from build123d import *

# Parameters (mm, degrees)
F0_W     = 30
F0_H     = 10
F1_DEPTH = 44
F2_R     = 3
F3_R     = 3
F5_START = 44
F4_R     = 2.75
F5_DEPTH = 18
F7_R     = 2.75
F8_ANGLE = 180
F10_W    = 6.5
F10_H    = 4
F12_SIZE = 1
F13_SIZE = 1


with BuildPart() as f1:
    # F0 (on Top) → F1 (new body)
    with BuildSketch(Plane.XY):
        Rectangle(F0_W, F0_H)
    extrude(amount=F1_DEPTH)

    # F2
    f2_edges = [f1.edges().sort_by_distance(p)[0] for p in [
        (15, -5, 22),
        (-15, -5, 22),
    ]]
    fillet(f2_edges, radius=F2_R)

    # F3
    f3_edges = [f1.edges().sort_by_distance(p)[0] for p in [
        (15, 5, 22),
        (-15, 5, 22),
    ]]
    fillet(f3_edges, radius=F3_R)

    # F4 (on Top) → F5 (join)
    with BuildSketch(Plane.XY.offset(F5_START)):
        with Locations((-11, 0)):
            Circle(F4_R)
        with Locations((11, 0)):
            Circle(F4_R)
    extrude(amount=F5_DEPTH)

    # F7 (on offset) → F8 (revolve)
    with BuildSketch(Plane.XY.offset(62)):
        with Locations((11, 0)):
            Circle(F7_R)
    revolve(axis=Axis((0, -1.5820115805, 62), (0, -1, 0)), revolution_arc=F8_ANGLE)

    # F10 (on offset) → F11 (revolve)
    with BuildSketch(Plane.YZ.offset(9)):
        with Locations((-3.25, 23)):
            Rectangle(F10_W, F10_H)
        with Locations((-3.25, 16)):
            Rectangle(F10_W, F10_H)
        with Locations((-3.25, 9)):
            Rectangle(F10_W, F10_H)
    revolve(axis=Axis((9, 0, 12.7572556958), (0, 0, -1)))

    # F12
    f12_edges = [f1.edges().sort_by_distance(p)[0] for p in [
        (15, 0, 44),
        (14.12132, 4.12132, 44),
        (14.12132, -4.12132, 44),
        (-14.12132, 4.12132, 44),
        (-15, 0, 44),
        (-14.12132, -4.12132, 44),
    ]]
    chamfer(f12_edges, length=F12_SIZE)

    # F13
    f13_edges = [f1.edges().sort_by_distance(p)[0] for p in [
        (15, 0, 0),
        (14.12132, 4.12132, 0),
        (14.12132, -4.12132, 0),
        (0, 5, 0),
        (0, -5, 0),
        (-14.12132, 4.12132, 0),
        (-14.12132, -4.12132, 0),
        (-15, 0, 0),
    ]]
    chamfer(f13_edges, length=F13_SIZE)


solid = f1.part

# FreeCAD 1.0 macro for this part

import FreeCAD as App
import Part
import Sketcher
from FreeCAD import Vector


def edges_at(feature, points):
    """Names of the edges that pass closest to the given points."""
    edges = feature.Shape.Edges
    near = lambda p: min(range(len(edges)), key=lambda i: edges[i].distToShape(Part.Vertex(*p))[0])
    return sorted({f"Edge{near(p) + 1}" for p in points})

doc = App.newDocument("Part")
body = doc.addObject("PartDesign::Body", "Body")

# Sketch on XY plane
sketch1 = body.newObject("Sketcher::SketchObject", "Sketch")
sketch1.AttachmentSupport = (doc.getObject("XY_Plane"), [""])
sketch1.MapMode = "FlatFace"
sketch1.addGeometry([
    Part.LineSegment(Vector(-15, 5, 0), Vector(-15, -5, 0)),
    Part.LineSegment(Vector(-15, -5, 0), Vector(15, -5, 0)),
    Part.LineSegment(Vector(15, -5, 0), Vector(15, 5, 0)),
    Part.LineSegment(Vector(15, 5, 0), Vector(-15, 5, 0)),
], False)
sketch1.addConstraint([
    Sketcher.Constraint("Coincident", 0, 2, 1, 1),
    Sketcher.Constraint("Coincident", 1, 2, 2, 1),
    Sketcher.Constraint("Coincident", 2, 2, 3, 1),
    Sketcher.Constraint("Coincident", 3, 2, 0, 1),
    Sketcher.Constraint("Vertical", 0),
    Sketcher.Constraint("Horizontal", 1),
    Sketcher.Constraint("Vertical", 2),
    Sketcher.Constraint("Horizontal", 3),
    Sketcher.Constraint("Symmetric", 0, 2, 2, 2, -1, 1),
    Sketcher.Constraint("DistanceX", 1, 1, 1, 2, 30.0),
    Sketcher.Constraint("DistanceY", 0, 2, 0, 1, 10.0),
])
pad1 = body.newObject("PartDesign::Pad", "Pad")
pad1.Profile = sketch1
pad1.Length = 44
doc.recompute()

fillet = body.newObject("PartDesign::Fillet", "Fillet")
fillet.Base = (pad1, edges_at(pad1, [(15, -5, 22), (-15, -5, 22)]))
fillet.Radius = 3
doc.recompute()

fillet2 = body.newObject("PartDesign::Fillet", "Fillet001")
fillet2.Base = (fillet, edges_at(fillet, [(15, 5, 22), (-15, 5, 22)]))
fillet2.Radius = 3

# Sketch on XY plane
sketch2 = body.newObject("Sketcher::SketchObject", "Sketch001")
sketch2.AttachmentSupport = (doc.getObject("XY_Plane"), [""])
sketch2.MapMode = "FlatFace"
sketch2.AttachmentOffset = App.Placement(Vector(0, 0, 44), App.Rotation())
sketch2.addGeometry([
    Part.Circle(Vector(-11, 0, 0), Vector(0, 0, 1), 2.8),
    Part.Circle(Vector(11, 0, 0), Vector(0, 0, 1), 2.8),
], False)
sketch2.addConstraint([
    Sketcher.Constraint("Equal", 0, 1),
    Sketcher.Constraint("Symmetric", 0, 3, 1, 3, -1, 1),
    Sketcher.Constraint("PointOnObject", 0, 3, -1),
    Sketcher.Constraint("Diameter", 0, 5.5),
    Sketcher.Constraint("DistanceX", 0, 3, -1, 1, 11.0),
])
pad2 = body.newObject("PartDesign::Pad", "Pad001")
pad2.Profile = sketch2
pad2.Length = 18

# Sketch on XY plane
sketch3 = body.newObject("Sketcher::SketchObject", "Sketch002")
sketch3.AttachmentSupport = (doc.getObject("XY_Plane"), [""])
sketch3.MapMode = "FlatFace"
sketch3.AttachmentOffset = App.Placement(Vector(0, 0, 62), App.Rotation())
sketch3.addGeometry(Part.Circle(Vector(11, 0, 0), Vector(0, 0, 1), 2.8), False)
sketch3.addConstraint([
    Sketcher.Constraint("PointOnObject", 0, 3, -1),
    Sketcher.Constraint("Diameter", 0, 5.5),
    Sketcher.Constraint("DistanceX", -1, 1, 0, 3, 11.0),
])
revolution = body.newObject("PartDesign::Revolution", "Revolution")
revolution.Profile = sketch3
revolution.ReferenceAxis = (sketch3, ["V_Axis"])
revolution.Angle = 180
revolution.Reversed = True

# Sketch on YZ plane
sketch4 = body.newObject("Sketcher::SketchObject", "Sketch003")
sketch4.AttachmentSupport = (doc.getObject("YZ_Plane"), [""])
sketch4.MapMode = "FlatFace"
sketch4.AttachmentOffset = App.Placement(Vector(0, 0, 9), App.Rotation())
sketch4.addGeometry([
    Part.LineSegment(Vector(-6.5, 25, 0), Vector(-6.5, 21, 0)),  # 0
    Part.LineSegment(Vector(-6.5, 21, 0), Vector(0, 21, 0)),  # 1
    Part.LineSegment(Vector(0, 21, 0), Vector(0, 25, 0)),  # 2
    Part.LineSegment(Vector(0, 25, 0), Vector(-6.5, 25, 0)),  # 3
    Part.LineSegment(Vector(-6.5, 18, 0), Vector(-6.5, 14, 0)),  # 4
    Part.LineSegment(Vector(-6.5, 14, 0), Vector(0, 14, 0)),  # 5
    Part.LineSegment(Vector(0, 14, 0), Vector(0, 18, 0)),  # 6
    Part.LineSegment(Vector(0, 18, 0), Vector(-6.5, 18, 0)),  # 7
    Part.LineSegment(Vector(-6.5, 11, 0), Vector(-6.5, 7, 0)),  # 8
    Part.LineSegment(Vector(-6.5, 7, 0), Vector(0, 7, 0)),  # 9
    Part.LineSegment(Vector(0, 7, 0), Vector(0, 11, 0)),  # 10
    Part.LineSegment(Vector(0, 11, 0), Vector(-6.5, 11, 0)),  # 11
], False)
sketch4.addConstraint([
    Sketcher.Constraint("Coincident", 0, 2, 1, 1),
    Sketcher.Constraint("Coincident", 1, 2, 2, 1),
    Sketcher.Constraint("Coincident", 2, 2, 3, 1),
    Sketcher.Constraint("Coincident", 3, 2, 0, 1),
    Sketcher.Constraint("Coincident", 4, 2, 5, 1),
    Sketcher.Constraint("Coincident", 5, 2, 6, 1),
    Sketcher.Constraint("Coincident", 6, 2, 7, 1),
    Sketcher.Constraint("Coincident", 7, 2, 4, 1),
    Sketcher.Constraint("Coincident", 8, 2, 9, 1),
    Sketcher.Constraint("Coincident", 9, 2, 10, 1),
    Sketcher.Constraint("Coincident", 10, 2, 11, 1),
    Sketcher.Constraint("Coincident", 11, 2, 8, 1),
    Sketcher.Constraint("Vertical", 0),
    Sketcher.Constraint("Horizontal", 1),
    Sketcher.Constraint("Vertical", 2),
    Sketcher.Constraint("Horizontal", 3),
    Sketcher.Constraint("Vertical", 4),
    Sketcher.Constraint("Horizontal", 5),
    Sketcher.Constraint("Vertical", 6),
    Sketcher.Constraint("Horizontal", 7),
    Sketcher.Constraint("Vertical", 8),
    Sketcher.Constraint("Horizontal", 9),
    Sketcher.Constraint("Vertical", 10),
    Sketcher.Constraint("Horizontal", 11),
    Sketcher.Constraint("PointOnObject", 1, 2, -2),
    Sketcher.Constraint("PointOnObject", 5, 2, -2),
    Sketcher.Constraint("PointOnObject", 9, 2, -2),
    Sketcher.Constraint("Vertical", 3, 2, 4, 2),
    Sketcher.Constraint("Vertical", 7, 2, 8, 2),
    Sketcher.Constraint("Equal", 2, 4),
    Sketcher.Constraint("Equal", 6, 8),
    Sketcher.Constraint("DistanceY", 0, 2, 0, 1, 4.0),
    Sketcher.Constraint("DistanceX", 1, 1, 1, 2, 6.5),
    Sketcher.Constraint("DistanceY", -1, 1, 0, 2, 21.0),
    Sketcher.Constraint("DistanceY", -1, 1, 4, 2, 14.0),
    Sketcher.Constraint("DistanceY", -1, 1, 8, 2, 7.0),
])
revolution2 = body.newObject("PartDesign::Revolution", "Revolution001")
revolution2.Profile = sketch4
revolution2.ReferenceAxis = (sketch4, ["V_Axis"])
revolution2.Angle = 360
doc.recompute()

chamfer = body.newObject("PartDesign::Chamfer", "Chamfer")
chamfer.Base = (revolution2, edges_at(revolution2, [
    (15, 0, 44),
    (14.121, 4.121, 44),
    (14.121, -4.121, 44),
    (-14.121, 4.121, 44),
    (-15, 0, 44),
    (-14.121, -4.121, 44),
]))
chamfer.Size = 1
doc.recompute()

chamfer2 = body.newObject("PartDesign::Chamfer", "Chamfer001")
chamfer2.Base = (chamfer, edges_at(chamfer, [
    (15, 0, 0),
    (14.121, 4.121, 0),
    (14.121, -4.121, 0),
    (0, 5, 0),
    (0, -5, 0),
    (-14.121, 4.121, 0),
    (-14.121, -4.121, 0),
    (-15, 0, 0),
]))
chamfer2.Size = 1

doc.recompute()
